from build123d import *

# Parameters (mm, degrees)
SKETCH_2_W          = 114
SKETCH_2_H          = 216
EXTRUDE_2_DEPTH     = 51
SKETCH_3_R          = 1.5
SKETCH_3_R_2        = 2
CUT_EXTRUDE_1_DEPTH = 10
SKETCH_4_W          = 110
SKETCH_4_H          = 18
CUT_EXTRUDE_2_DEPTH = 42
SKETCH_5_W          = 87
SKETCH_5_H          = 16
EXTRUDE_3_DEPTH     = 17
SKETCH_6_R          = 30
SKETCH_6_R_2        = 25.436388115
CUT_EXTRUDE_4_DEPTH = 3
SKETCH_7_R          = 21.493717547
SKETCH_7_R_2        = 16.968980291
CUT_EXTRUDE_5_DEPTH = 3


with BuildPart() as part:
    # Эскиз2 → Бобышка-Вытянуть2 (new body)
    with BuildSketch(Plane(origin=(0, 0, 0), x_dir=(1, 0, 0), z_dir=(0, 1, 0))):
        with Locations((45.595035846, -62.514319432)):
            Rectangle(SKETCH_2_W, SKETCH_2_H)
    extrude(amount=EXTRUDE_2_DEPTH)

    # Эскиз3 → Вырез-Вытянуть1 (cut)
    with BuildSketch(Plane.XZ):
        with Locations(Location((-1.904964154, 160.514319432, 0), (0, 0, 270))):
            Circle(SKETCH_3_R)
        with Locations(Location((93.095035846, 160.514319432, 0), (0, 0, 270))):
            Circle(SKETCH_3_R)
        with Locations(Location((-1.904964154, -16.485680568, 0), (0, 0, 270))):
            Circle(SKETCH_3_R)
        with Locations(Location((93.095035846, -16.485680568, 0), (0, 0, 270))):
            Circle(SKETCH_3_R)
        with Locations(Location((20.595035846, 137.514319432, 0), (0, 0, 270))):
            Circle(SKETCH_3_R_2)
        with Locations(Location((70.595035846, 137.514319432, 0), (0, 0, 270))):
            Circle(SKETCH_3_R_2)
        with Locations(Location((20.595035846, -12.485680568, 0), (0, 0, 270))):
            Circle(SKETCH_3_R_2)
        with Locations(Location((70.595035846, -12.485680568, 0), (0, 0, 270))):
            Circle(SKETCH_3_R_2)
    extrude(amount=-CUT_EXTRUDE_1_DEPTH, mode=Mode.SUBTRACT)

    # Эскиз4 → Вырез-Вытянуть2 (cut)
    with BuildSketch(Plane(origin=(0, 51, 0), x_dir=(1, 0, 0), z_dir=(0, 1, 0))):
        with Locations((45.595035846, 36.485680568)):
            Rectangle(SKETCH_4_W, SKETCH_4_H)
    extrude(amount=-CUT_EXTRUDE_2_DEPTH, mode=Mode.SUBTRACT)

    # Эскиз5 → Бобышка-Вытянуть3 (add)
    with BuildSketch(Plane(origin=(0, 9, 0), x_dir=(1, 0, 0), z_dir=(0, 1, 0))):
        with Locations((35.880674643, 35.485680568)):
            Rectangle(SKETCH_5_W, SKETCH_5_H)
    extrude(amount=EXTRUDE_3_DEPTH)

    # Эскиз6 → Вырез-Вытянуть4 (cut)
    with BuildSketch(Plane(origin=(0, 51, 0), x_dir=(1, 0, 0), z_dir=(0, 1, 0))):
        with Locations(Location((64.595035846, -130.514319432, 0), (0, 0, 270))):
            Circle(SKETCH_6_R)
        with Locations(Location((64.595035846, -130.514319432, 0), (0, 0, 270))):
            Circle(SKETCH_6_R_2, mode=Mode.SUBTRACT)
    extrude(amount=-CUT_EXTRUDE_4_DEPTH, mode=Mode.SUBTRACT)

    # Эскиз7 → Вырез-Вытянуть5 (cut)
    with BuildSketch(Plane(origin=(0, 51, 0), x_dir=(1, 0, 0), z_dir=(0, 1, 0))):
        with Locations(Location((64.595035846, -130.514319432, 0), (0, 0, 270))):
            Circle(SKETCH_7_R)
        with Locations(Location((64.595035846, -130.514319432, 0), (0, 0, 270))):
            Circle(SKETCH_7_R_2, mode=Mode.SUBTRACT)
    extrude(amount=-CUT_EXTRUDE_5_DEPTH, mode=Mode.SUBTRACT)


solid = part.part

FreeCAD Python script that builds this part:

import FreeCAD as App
import Part
import Sketcher
Q = App.Units.Quantity


def add_polygon(sketch, points):
    """Adds a closed chain of lines whose ends are joined by coincident constraints."""
    first, n = sketch.GeometryCount, len(points)
    for a, b in zip(points, points[1:] + points[:1]):
        sketch.addGeometry(Part.LineSegment(App.Vector(*a, 0), App.Vector(*b, 0)), False)
    for i in range(n):
        sketch.addConstraint(Sketcher.Constraint("Coincident", first + i, 2, first + (i + 1) % n, 1))

doc = App.newDocument("Part")
params = doc.addObject("Spreadsheet::Sheet", "Params")
for row, (alias, value) in enumerate([
    ("sketch1_width", "114 mm"),
    ("sketch1_height", "216 mm"),
    ("pad1_length", "51 mm"),
    ("sketch2_diameter", "3 mm"),
    ("sketch2_diameter2", "4 mm"),
    ("pocket1_length", "10 mm"),
    ("sketch3_width", "110 mm"),
    ("sketch3_height", "18 mm"),
    ("pocket2_length", "42 mm"),
    ("sketch4_width", "87 mm"),
    ("sketch4_height", "16 mm"),
    ("pad2_length", "17 mm"),
    ("sketch5_diameter", "60 mm"),
    ("pocket3_length", "3 mm"),
    ("pocket4_length", "3 mm"),
], start=1):
    params.set(f"A{row}", alias)
    params.set(f"B{row}", "=" + value)
    params.setAlias(f"B{row}", alias)

body = doc.addObject("PartDesign::Body", "Body")

sketch1 = body.newObject("Sketcher::SketchObject", "Sketch")
sketch1.AttachmentSupport = (doc.getObject("XZ_Plane"), [""])
sketch1.MapMode = "FlatFace"
add_polygon(sketch1, [(-11.404964, -45.485681), (-11.404964, 170.514319), (102.595036, 170.514319), (102.595036, -45.485681)])
sketch1.addConstraint(Sketcher.Constraint("Vertical", 0))
sketch1.addConstraint(Sketcher.Constraint("Horizontal", 1))
sketch1.addConstraint(Sketcher.Constraint("Vertical", 2))
sketch1.addConstraint(Sketcher.Constraint("Horizontal", 3))
sketch1.addConstraint(Sketcher.Constraint("DistanceX", 1, 1, 1, 2, Q("114 mm")))
sketch1.addConstraint(Sketcher.Constraint("DistanceY", 0, 1, 0, 2, Q("216 mm")))
sketch1.addConstraint(Sketcher.Constraint("DistanceY", -1, 1, 0, 2, Q("170.514319 mm")))
sketch1.addConstraint(Sketcher.Constraint("DistanceX", 0, 2, -1, 1, Q("11.404964 mm")))
sketch1.setExpression("Constraints[8]", "Params.sketch1_width")
sketch1.setExpression("Constraints[9]", "Params.sketch1_height")
pad1 = body.newObject("PartDesign::Pad", "Pad")
pad1.Profile = sketch1
pad1.setExpression("Length", "Params.pad1_length")
pad1.Reversed = True

sketch2 = body.newObject("Sketcher::SketchObject", "Sketch001")
sketch2.AttachmentSupport = (doc.getObject("XZ_Plane"), [""])
sketch2.MapMode = "FlatFace"
sketch2.addGeometry(Part.Circle(App.Vector(-1.904964, 160.514319, 0), App.Vector(0, 0, 1), 1.5), False)
sketch2.addGeometry(Part.Circle(App.Vector(93.095036, 160.514319, 0), App.Vector(0, 0, 1), 1.5), False)
sketch2.addGeometry(Part.Circle(App.Vector(-1.904964, -16.485681, 0), App.Vector(0, 0, 1), 1.5), False)
sketch2.addGeometry(Part.Circle(App.Vector(93.095036, -16.485681, 0), App.Vector(0, 0, 1), 1.5), False)
sketch2.addGeometry(Part.Circle(App.Vector(20.595036, 137.514319, 0), App.Vector(0, 0, 1), 2), False)
sketch2.addGeometry(Part.Circle(App.Vector(70.595036, 137.514319, 0), App.Vector(0, 0, 1), 2), False)
sketch2.addGeometry(Part.Circle(App.Vector(20.595036, -12.485681, 0), App.Vector(0, 0, 1), 2), False)
sketch2.addGeometry(Part.Circle(App.Vector(70.595036, -12.485681, 0), App.Vector(0, 0, 1), 2), False)
sketch2.addConstraint(Sketcher.Constraint("Equal", 0, 1))
sketch2.addConstraint(Sketcher.Constraint("Equal", 1, 2))
sketch2.addConstraint(Sketcher.Constraint("Equal", 2, 3))
sketch2.addConstraint(Sketcher.Constraint("Equal", 4, 5))
sketch2.addConstraint(Sketcher.Constraint("Equal", 5, 6))
sketch2.addConstraint(Sketcher.Constraint("Equal", 6, 7))
sketch2.addConstraint(Sketcher.Constraint("Horizontal", 0, 3, 1, 3))
sketch2.addConstraint(Sketcher.Constraint("Horizontal", 2, 3, 3, 3))
sketch2.addConstraint(Sketcher.Constraint("Horizontal", 4, 3, 5, 3))
sketch2.addConstraint(Sketcher.Constraint("Horizontal", 6, 3, 7, 3))
sketch2.addConstraint(Sketcher.Constraint("Vertical", 0, 3, 2, 3))
sketch2.addConstraint(Sketcher.Constraint("Vertical", 1, 3, 3, 3))
sketch2.addConstraint(Sketcher.Constraint("Vertical", 4, 3, 6, 3))
sketch2.addConstraint(Sketcher.Constraint("Vertical", 5, 3, 7, 3))
sketch2.addConstraint(Sketcher.Constraint("Diameter", 0, Q("3 mm")))
sketch2.addConstraint(Sketcher.Constraint("Diameter", 4, Q("4 mm")))
sketch2.addConstraint(Sketcher.Constraint("DistanceX", 0, 3, 1, 3, Q("95 mm")))
sketch2.addConstraint(Sketcher.Constraint("DistanceY", 2, 3, 0, 3, Q("177 mm")))
sketch2.addConstraint(Sketcher.Constraint("DistanceY", 4, 3, 0, 3, Q("23 mm")))
sketch2.addConstraint(Sketcher.Constraint("DistanceX", 4, 3, 5, 3, Q("50 mm")))
sketch2.addConstraint(Sketcher.Constraint("DistanceY", 2, 3, 6, 3, Q("4 mm")))
sketch2.addConstraint(Sketcher.Constraint("DistanceX", 0, 3, 4, 3, Q("22.5 mm")))
sketch2.addConstraint(Sketcher.Constraint("DistanceY", -1, 1, 0, 3, Q("160.514319 mm")))
sketch2.addConstraint(Sketcher.Constraint("DistanceX", 0, 3, -1, 1, Q("1.904964 mm")))
sketch2.setExpression("Constraints[14]", "Params.sketch2_diameter")
sketch2.setExpression("Constraints[15]", "Params.sketch2_diameter2")
pocket1 = body.newObject("PartDesign::Pocket", "Pocket")
pocket1.Profile = sketch2
pocket1.setExpression("Length", "Params.pocket1_length")

sketch3 = body.newObject("Sketcher::SketchObject", "Sketch002")
sketch3.AttachmentSupport = (doc.getObject("XZ_Plane"), [""])
sketch3.MapMode = "FlatFace"
sketch3.AttachmentOffset = App.Placement(App.Vector(0, 0, -51), App.Rotation())
add_polygon(sketch3, [(-9.404964, -45.485681), (-9.404964, -27.485681), (100.595036, -27.485681), (100.595036, -45.485681)])
sketch3.addConstraint(Sketcher.Constraint("Vertical", 0))
sketch3.addConstraint(Sketcher.Constraint("Horizontal", 1))
sketch3.addConstraint(Sketcher.Constraint("Vertical", 2))
sketch3.addConstraint(Sketcher.Constraint("Horizontal", 3))
sketch3.addConstraint(Sketcher.Constraint("DistanceX", 1, 1, 1, 2, Q("110 mm")))
sketch3.addConstraint(Sketcher.Constraint("DistanceY", 0, 1, 0, 2, Q("18 mm")))
sketch3.addConstraint(Sketcher.Constraint("DistanceY", 0, 2, -1, 1, Q("27.485681 mm")))
sketch3.addConstraint(Sketcher.Constraint("DistanceX", 0, 2, -1, 1, Q("9.404964 mm")))
sketch3.setExpression("Constraints[8]", "Params.sketch3_width")
sketch3.setExpression("Constraints[9]", "Params.sketch3_height")
pocket2 = body.newObject("PartDesign::Pocket", "Pocket001")
pocket2.Profile = sketch3
pocket2.setExpression("Length", "Params.pocket2_length")
pocket2.Reversed = True

sketch4 = body.newObject("Sketcher::SketchObject", "Sketch003")
sketch4.AttachmentSupport = (doc.getObject("XZ_Plane"), [""])
sketch4.MapMode = "FlatFace"
sketch4.AttachmentOffset = App.Placement(App.Vector(0, 0, -9), App.Rotation())
add_polygon(sketch4, [(-7.619325, -43.485681), (-7.619325, -27.485681), (79.380675, -27.485681), (79.380675, -43.485681)])
sketch4.addConstraint(Sketcher.Constraint("Vertical", 0))
sketch4.addConstraint(Sketcher.Constraint("Horizontal", 1))
sketch4.addConstraint(Sketcher.Constraint("Vertical", 2))
sketch4.addConstraint(Sketcher.Constraint("Horizontal", 3))
sketch4.addConstraint(Sketcher.Constraint("DistanceX", 1, 1, 1, 2, Q("87 mm")))
sketch4.addConstraint(Sketcher.Constraint("DistanceY", 0, 1, 0, 2, Q("16 mm")))
sketch4.addConstraint(Sketcher.Constraint("DistanceY", 0, 2, -1, 1, Q("27.485681 mm")))
sketch4.addConstraint(Sketcher.Constraint("DistanceX", 0, 2, -1, 1, Q("7.619325 mm")))
sketch4.setExpression("Constraints[8]", "Params.sketch4_width")
sketch4.setExpression("Constraints[9]", "Params.sketch4_height")
pad2 = body.newObject("PartDesign::Pad", "Pad001")
pad2.Profile = sketch4
pad2.setExpression("Length", "Params.pad2_length")
pad2.Reversed = True

sketch5 = body.newObject("Sketcher::SketchObject", "Sketch004")
sketch5.AttachmentSupport = (doc.getObject("XZ_Plane"), [""])
sketch5.MapMode = "FlatFace"
sketch5.AttachmentOffset = App.Placement(App.Vector(0, 0, -51), App.Rotation())
sketch5.addGeometry(Part.Circle(App.Vector(64.595036, 130.514319, 0), App.Vector(0, 0, 1), 30), False)
sketch5.addGeometry(Part.Circle(App.Vector(64.595036, 130.514319, 0), App.Vector(0, 0, 1), 25.436388), False)
sketch5.addConstraint(Sketcher.Constraint("Coincident", 1, 3, 0, 3))
sketch5.addConstraint(Sketcher.Constraint("Diameter", 0, Q("60 mm")))
sketch5.addConstraint(Sketcher.Constraint("Diameter", 1, Q("50.872776 mm")))
sketch5.addConstraint(Sketcher.Constraint("DistanceY", -1, 1, 0, 3, Q("130.514319 mm")))
sketch5.addConstraint(Sketcher.Constraint("DistanceX", -1, 1, 0, 3, Q("64.595036 mm")))
sketch5.setExpression("Constraints[1]", "Params.sketch5_diameter")
pocket3 = body.newObject("PartDesign::Pocket", "Pocket002")
pocket3.Profile = sketch5
pocket3.setExpression("Length", "Params.pocket3_length")
pocket3.Reversed = True

sketch6 = body.newObject("Sketcher::SketchObject", "Sketch005")
sketch6.AttachmentSupport = (doc.getObject("XZ_Plane"), [""])
sketch6.MapMode = "FlatFace"
sketch6.AttachmentOffset = App.Placement(App.Vector(0, 0, -51), App.Rotation())
sketch6.addGeometry(Part.Circle(App.Vector(64.595036, 130.514319, 0), App.Vector(0, 0, 1), 21.493718), False)
sketch6.addGeometry(Part.Circle(App.Vector(64.595036, 130.514319, 0), App.Vector(0, 0, 1), 16.96898), False)
sketch6.addConstraint(Sketcher.Constraint("Coincident", 1, 3, 0, 3))
sketch6.addConstraint(Sketcher.Constraint("Diameter", 1, Q("33.937961 mm")))
sketch6.addConstraint(Sketcher.Constraint("Diameter", 0, Q("42.987435 mm")))
sketch6.addConstraint(Sketcher.Constraint("DistanceY", -1, 1, 0, 3, Q("130.514319 mm")))
sketch6.addConstraint(Sketcher.Constraint("DistanceX", -1, 1, 0, 3, Q("64.595036 mm")))
pocket4 = body.newObject("PartDesign::Pocket", "Pocket003")
pocket4.Profile = sketch6
pocket4.setExpression("Length", "Params.pocket4_length")
pocket4.Reversed = True

doc.recompute()
